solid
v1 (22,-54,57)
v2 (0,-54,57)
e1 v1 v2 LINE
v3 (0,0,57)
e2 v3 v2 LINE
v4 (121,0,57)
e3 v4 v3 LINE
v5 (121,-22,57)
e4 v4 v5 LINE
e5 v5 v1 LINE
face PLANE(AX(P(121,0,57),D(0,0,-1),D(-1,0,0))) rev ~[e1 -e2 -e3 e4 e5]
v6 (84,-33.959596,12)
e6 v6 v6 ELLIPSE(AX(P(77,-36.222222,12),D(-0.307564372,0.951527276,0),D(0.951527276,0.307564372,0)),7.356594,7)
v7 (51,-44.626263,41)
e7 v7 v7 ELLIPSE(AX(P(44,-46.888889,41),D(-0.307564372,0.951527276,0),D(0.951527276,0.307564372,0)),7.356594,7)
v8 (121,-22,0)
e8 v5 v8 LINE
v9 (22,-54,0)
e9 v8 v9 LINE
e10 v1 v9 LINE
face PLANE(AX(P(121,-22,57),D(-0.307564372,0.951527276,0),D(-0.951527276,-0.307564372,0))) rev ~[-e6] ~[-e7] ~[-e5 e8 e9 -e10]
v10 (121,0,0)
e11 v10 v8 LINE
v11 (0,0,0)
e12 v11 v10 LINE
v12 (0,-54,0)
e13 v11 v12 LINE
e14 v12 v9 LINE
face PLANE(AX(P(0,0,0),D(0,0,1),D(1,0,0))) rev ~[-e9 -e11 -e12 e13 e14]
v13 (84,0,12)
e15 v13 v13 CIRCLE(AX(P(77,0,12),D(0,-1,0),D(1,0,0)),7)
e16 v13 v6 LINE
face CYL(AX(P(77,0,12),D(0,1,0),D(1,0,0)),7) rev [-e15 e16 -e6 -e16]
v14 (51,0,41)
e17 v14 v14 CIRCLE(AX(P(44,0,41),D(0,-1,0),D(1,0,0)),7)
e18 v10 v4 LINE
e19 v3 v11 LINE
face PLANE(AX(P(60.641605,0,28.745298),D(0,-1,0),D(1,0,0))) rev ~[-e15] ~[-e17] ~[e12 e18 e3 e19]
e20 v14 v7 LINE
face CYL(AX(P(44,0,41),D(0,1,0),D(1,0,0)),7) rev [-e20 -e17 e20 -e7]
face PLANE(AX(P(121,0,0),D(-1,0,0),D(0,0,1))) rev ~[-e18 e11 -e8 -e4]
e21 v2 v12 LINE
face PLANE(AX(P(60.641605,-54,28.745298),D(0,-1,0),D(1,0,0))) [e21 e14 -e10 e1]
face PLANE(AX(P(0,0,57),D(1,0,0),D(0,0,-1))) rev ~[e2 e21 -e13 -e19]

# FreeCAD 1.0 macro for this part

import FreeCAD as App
import Part
import Sketcher

doc = App.newDocument("Part")
body = doc.addObject("PartDesign::Body", "Body")

# Sketch on XZ plane
sketch1 = doc.addObject("Sketcher::SketchObject", "Sketch")
body.addObject(sketch1)
sketch1.AttachmentSupport = (doc.XZ_Plane, [""])
sketch1.MapMode = "FlatFace"
sketch1.addGeometry([
    Part.LineSegment(App.Vector(0, 57, 0), App.Vector(0, 0, 0)),  # 0
    Part.LineSegment(App.Vector(0, 0, 0), App.Vector(121, 0, 0)),  # 1
    Part.LineSegment(App.Vector(121, 0, 0), App.Vector(121, 57, 0)),  # 2
    Part.LineSegment(App.Vector(121, 57, 0), App.Vector(0, 57, 0)),  # 3
    Part.Circle(App.Vector(77, 12, 0), App.Vector(0, 0, 1), 7),  # 4
    Part.Circle(App.Vector(44, 41, 0), App.Vector(0, 0, 1), 7),  # 5
], False)
sketch1.addConstraint([
    Sketcher.Constraint("Coincident", 0, 2, 1, 1),
    Sketcher.Constraint("Coincident", 1, 2, 2, 1),
    Sketcher.Constraint("Coincident", 2, 2, 3, 1),
    Sketcher.Constraint("Coincident", 3, 2, 0, 1),
    Sketcher.Constraint("Vertical", 0),
    Sketcher.Constraint("Horizontal", 1),
    Sketcher.Constraint("Vertical", 2),
    Sketcher.Constraint("Horizontal", 3),
    Sketcher.Constraint("Coincident", 0, 2, -1, 1),
    Sketcher.Constraint("Equal", 4, 5),
    Sketcher.Constraint("Diameter", 4, 14.0),
    Sketcher.Constraint("DistanceX", 1, 1, 1, 2, 121.0),
    Sketcher.Constraint("DistanceY", 0, 2, 0, 1, 57.0),
    Sketcher.Constraint("DistanceX", -1, 1, 4, 3, 77.0),
    Sketcher.Constraint("DistanceY", -1, 1, 4, 3, 12.0),
    Sketcher.Constraint("DistanceX", -1, 1, 5, 3, 44.0),
    Sketcher.Constraint("DistanceY", -1, 1, 5, 3, 41.0),
])
pad1 = doc.addObject("PartDesign::Pad", "Pad")
body.addObject(pad1)
pad1.Profile = sketch1
pad1.Length = 54

# Sketch on XY plane
sketch2 = doc.addObject("Sketcher::SketchObject", "Sketch001")
body.addObject(sketch2)
sketch2.AttachmentSupport = (doc.XY_Plane, [""])
sketch2.MapMode = "FlatFace"
sketch2.AttachmentOffset = App.Placement(App.Vector(0, 0, 57), App.Rotation())
sketch2.addGeometry([
    Part.LineSegment(App.Vector(121, -22, 0), App.Vector(22, -54, 0)),
    Part.LineSegment(App.Vector(22, -54, 0), App.Vector(121, -54, 0)),
    Part.LineSegment(App.Vector(121, -54, 0), App.Vector(121, -22, 0)),
], False)
sketch2.addConstraint([
    Sketcher.Constraint("Coincident", 0, 2, 1, 1),
    Sketcher.Constraint("Coincident", 1, 2, 2, 1),
    Sketcher.Constraint("Coincident", 2, 2, 0, 1),
    Sketcher.Constraint("Horizontal", 1),
    Sketcher.Constraint("Vertical", 2),
    Sketcher.Constraint("DistanceX", 1, 1, 1, 2, 99.0),
    Sketcher.Constraint("DistanceY", 2, 1, 2, 2, 32.0),
    Sketcher.Constraint("DistanceX", -1, 1, 0, 2, 22.0),
    Sketcher.Constraint("DistanceY", 0, 2, -1, 1, 54.0),
])
pocket1 = doc.addObject("PartDesign::Pocket", "Pocket")
body.addObject(pocket1)
pocket1.Profile = sketch2
pocket1.Type = "ThroughAll"

doc.recompute()
